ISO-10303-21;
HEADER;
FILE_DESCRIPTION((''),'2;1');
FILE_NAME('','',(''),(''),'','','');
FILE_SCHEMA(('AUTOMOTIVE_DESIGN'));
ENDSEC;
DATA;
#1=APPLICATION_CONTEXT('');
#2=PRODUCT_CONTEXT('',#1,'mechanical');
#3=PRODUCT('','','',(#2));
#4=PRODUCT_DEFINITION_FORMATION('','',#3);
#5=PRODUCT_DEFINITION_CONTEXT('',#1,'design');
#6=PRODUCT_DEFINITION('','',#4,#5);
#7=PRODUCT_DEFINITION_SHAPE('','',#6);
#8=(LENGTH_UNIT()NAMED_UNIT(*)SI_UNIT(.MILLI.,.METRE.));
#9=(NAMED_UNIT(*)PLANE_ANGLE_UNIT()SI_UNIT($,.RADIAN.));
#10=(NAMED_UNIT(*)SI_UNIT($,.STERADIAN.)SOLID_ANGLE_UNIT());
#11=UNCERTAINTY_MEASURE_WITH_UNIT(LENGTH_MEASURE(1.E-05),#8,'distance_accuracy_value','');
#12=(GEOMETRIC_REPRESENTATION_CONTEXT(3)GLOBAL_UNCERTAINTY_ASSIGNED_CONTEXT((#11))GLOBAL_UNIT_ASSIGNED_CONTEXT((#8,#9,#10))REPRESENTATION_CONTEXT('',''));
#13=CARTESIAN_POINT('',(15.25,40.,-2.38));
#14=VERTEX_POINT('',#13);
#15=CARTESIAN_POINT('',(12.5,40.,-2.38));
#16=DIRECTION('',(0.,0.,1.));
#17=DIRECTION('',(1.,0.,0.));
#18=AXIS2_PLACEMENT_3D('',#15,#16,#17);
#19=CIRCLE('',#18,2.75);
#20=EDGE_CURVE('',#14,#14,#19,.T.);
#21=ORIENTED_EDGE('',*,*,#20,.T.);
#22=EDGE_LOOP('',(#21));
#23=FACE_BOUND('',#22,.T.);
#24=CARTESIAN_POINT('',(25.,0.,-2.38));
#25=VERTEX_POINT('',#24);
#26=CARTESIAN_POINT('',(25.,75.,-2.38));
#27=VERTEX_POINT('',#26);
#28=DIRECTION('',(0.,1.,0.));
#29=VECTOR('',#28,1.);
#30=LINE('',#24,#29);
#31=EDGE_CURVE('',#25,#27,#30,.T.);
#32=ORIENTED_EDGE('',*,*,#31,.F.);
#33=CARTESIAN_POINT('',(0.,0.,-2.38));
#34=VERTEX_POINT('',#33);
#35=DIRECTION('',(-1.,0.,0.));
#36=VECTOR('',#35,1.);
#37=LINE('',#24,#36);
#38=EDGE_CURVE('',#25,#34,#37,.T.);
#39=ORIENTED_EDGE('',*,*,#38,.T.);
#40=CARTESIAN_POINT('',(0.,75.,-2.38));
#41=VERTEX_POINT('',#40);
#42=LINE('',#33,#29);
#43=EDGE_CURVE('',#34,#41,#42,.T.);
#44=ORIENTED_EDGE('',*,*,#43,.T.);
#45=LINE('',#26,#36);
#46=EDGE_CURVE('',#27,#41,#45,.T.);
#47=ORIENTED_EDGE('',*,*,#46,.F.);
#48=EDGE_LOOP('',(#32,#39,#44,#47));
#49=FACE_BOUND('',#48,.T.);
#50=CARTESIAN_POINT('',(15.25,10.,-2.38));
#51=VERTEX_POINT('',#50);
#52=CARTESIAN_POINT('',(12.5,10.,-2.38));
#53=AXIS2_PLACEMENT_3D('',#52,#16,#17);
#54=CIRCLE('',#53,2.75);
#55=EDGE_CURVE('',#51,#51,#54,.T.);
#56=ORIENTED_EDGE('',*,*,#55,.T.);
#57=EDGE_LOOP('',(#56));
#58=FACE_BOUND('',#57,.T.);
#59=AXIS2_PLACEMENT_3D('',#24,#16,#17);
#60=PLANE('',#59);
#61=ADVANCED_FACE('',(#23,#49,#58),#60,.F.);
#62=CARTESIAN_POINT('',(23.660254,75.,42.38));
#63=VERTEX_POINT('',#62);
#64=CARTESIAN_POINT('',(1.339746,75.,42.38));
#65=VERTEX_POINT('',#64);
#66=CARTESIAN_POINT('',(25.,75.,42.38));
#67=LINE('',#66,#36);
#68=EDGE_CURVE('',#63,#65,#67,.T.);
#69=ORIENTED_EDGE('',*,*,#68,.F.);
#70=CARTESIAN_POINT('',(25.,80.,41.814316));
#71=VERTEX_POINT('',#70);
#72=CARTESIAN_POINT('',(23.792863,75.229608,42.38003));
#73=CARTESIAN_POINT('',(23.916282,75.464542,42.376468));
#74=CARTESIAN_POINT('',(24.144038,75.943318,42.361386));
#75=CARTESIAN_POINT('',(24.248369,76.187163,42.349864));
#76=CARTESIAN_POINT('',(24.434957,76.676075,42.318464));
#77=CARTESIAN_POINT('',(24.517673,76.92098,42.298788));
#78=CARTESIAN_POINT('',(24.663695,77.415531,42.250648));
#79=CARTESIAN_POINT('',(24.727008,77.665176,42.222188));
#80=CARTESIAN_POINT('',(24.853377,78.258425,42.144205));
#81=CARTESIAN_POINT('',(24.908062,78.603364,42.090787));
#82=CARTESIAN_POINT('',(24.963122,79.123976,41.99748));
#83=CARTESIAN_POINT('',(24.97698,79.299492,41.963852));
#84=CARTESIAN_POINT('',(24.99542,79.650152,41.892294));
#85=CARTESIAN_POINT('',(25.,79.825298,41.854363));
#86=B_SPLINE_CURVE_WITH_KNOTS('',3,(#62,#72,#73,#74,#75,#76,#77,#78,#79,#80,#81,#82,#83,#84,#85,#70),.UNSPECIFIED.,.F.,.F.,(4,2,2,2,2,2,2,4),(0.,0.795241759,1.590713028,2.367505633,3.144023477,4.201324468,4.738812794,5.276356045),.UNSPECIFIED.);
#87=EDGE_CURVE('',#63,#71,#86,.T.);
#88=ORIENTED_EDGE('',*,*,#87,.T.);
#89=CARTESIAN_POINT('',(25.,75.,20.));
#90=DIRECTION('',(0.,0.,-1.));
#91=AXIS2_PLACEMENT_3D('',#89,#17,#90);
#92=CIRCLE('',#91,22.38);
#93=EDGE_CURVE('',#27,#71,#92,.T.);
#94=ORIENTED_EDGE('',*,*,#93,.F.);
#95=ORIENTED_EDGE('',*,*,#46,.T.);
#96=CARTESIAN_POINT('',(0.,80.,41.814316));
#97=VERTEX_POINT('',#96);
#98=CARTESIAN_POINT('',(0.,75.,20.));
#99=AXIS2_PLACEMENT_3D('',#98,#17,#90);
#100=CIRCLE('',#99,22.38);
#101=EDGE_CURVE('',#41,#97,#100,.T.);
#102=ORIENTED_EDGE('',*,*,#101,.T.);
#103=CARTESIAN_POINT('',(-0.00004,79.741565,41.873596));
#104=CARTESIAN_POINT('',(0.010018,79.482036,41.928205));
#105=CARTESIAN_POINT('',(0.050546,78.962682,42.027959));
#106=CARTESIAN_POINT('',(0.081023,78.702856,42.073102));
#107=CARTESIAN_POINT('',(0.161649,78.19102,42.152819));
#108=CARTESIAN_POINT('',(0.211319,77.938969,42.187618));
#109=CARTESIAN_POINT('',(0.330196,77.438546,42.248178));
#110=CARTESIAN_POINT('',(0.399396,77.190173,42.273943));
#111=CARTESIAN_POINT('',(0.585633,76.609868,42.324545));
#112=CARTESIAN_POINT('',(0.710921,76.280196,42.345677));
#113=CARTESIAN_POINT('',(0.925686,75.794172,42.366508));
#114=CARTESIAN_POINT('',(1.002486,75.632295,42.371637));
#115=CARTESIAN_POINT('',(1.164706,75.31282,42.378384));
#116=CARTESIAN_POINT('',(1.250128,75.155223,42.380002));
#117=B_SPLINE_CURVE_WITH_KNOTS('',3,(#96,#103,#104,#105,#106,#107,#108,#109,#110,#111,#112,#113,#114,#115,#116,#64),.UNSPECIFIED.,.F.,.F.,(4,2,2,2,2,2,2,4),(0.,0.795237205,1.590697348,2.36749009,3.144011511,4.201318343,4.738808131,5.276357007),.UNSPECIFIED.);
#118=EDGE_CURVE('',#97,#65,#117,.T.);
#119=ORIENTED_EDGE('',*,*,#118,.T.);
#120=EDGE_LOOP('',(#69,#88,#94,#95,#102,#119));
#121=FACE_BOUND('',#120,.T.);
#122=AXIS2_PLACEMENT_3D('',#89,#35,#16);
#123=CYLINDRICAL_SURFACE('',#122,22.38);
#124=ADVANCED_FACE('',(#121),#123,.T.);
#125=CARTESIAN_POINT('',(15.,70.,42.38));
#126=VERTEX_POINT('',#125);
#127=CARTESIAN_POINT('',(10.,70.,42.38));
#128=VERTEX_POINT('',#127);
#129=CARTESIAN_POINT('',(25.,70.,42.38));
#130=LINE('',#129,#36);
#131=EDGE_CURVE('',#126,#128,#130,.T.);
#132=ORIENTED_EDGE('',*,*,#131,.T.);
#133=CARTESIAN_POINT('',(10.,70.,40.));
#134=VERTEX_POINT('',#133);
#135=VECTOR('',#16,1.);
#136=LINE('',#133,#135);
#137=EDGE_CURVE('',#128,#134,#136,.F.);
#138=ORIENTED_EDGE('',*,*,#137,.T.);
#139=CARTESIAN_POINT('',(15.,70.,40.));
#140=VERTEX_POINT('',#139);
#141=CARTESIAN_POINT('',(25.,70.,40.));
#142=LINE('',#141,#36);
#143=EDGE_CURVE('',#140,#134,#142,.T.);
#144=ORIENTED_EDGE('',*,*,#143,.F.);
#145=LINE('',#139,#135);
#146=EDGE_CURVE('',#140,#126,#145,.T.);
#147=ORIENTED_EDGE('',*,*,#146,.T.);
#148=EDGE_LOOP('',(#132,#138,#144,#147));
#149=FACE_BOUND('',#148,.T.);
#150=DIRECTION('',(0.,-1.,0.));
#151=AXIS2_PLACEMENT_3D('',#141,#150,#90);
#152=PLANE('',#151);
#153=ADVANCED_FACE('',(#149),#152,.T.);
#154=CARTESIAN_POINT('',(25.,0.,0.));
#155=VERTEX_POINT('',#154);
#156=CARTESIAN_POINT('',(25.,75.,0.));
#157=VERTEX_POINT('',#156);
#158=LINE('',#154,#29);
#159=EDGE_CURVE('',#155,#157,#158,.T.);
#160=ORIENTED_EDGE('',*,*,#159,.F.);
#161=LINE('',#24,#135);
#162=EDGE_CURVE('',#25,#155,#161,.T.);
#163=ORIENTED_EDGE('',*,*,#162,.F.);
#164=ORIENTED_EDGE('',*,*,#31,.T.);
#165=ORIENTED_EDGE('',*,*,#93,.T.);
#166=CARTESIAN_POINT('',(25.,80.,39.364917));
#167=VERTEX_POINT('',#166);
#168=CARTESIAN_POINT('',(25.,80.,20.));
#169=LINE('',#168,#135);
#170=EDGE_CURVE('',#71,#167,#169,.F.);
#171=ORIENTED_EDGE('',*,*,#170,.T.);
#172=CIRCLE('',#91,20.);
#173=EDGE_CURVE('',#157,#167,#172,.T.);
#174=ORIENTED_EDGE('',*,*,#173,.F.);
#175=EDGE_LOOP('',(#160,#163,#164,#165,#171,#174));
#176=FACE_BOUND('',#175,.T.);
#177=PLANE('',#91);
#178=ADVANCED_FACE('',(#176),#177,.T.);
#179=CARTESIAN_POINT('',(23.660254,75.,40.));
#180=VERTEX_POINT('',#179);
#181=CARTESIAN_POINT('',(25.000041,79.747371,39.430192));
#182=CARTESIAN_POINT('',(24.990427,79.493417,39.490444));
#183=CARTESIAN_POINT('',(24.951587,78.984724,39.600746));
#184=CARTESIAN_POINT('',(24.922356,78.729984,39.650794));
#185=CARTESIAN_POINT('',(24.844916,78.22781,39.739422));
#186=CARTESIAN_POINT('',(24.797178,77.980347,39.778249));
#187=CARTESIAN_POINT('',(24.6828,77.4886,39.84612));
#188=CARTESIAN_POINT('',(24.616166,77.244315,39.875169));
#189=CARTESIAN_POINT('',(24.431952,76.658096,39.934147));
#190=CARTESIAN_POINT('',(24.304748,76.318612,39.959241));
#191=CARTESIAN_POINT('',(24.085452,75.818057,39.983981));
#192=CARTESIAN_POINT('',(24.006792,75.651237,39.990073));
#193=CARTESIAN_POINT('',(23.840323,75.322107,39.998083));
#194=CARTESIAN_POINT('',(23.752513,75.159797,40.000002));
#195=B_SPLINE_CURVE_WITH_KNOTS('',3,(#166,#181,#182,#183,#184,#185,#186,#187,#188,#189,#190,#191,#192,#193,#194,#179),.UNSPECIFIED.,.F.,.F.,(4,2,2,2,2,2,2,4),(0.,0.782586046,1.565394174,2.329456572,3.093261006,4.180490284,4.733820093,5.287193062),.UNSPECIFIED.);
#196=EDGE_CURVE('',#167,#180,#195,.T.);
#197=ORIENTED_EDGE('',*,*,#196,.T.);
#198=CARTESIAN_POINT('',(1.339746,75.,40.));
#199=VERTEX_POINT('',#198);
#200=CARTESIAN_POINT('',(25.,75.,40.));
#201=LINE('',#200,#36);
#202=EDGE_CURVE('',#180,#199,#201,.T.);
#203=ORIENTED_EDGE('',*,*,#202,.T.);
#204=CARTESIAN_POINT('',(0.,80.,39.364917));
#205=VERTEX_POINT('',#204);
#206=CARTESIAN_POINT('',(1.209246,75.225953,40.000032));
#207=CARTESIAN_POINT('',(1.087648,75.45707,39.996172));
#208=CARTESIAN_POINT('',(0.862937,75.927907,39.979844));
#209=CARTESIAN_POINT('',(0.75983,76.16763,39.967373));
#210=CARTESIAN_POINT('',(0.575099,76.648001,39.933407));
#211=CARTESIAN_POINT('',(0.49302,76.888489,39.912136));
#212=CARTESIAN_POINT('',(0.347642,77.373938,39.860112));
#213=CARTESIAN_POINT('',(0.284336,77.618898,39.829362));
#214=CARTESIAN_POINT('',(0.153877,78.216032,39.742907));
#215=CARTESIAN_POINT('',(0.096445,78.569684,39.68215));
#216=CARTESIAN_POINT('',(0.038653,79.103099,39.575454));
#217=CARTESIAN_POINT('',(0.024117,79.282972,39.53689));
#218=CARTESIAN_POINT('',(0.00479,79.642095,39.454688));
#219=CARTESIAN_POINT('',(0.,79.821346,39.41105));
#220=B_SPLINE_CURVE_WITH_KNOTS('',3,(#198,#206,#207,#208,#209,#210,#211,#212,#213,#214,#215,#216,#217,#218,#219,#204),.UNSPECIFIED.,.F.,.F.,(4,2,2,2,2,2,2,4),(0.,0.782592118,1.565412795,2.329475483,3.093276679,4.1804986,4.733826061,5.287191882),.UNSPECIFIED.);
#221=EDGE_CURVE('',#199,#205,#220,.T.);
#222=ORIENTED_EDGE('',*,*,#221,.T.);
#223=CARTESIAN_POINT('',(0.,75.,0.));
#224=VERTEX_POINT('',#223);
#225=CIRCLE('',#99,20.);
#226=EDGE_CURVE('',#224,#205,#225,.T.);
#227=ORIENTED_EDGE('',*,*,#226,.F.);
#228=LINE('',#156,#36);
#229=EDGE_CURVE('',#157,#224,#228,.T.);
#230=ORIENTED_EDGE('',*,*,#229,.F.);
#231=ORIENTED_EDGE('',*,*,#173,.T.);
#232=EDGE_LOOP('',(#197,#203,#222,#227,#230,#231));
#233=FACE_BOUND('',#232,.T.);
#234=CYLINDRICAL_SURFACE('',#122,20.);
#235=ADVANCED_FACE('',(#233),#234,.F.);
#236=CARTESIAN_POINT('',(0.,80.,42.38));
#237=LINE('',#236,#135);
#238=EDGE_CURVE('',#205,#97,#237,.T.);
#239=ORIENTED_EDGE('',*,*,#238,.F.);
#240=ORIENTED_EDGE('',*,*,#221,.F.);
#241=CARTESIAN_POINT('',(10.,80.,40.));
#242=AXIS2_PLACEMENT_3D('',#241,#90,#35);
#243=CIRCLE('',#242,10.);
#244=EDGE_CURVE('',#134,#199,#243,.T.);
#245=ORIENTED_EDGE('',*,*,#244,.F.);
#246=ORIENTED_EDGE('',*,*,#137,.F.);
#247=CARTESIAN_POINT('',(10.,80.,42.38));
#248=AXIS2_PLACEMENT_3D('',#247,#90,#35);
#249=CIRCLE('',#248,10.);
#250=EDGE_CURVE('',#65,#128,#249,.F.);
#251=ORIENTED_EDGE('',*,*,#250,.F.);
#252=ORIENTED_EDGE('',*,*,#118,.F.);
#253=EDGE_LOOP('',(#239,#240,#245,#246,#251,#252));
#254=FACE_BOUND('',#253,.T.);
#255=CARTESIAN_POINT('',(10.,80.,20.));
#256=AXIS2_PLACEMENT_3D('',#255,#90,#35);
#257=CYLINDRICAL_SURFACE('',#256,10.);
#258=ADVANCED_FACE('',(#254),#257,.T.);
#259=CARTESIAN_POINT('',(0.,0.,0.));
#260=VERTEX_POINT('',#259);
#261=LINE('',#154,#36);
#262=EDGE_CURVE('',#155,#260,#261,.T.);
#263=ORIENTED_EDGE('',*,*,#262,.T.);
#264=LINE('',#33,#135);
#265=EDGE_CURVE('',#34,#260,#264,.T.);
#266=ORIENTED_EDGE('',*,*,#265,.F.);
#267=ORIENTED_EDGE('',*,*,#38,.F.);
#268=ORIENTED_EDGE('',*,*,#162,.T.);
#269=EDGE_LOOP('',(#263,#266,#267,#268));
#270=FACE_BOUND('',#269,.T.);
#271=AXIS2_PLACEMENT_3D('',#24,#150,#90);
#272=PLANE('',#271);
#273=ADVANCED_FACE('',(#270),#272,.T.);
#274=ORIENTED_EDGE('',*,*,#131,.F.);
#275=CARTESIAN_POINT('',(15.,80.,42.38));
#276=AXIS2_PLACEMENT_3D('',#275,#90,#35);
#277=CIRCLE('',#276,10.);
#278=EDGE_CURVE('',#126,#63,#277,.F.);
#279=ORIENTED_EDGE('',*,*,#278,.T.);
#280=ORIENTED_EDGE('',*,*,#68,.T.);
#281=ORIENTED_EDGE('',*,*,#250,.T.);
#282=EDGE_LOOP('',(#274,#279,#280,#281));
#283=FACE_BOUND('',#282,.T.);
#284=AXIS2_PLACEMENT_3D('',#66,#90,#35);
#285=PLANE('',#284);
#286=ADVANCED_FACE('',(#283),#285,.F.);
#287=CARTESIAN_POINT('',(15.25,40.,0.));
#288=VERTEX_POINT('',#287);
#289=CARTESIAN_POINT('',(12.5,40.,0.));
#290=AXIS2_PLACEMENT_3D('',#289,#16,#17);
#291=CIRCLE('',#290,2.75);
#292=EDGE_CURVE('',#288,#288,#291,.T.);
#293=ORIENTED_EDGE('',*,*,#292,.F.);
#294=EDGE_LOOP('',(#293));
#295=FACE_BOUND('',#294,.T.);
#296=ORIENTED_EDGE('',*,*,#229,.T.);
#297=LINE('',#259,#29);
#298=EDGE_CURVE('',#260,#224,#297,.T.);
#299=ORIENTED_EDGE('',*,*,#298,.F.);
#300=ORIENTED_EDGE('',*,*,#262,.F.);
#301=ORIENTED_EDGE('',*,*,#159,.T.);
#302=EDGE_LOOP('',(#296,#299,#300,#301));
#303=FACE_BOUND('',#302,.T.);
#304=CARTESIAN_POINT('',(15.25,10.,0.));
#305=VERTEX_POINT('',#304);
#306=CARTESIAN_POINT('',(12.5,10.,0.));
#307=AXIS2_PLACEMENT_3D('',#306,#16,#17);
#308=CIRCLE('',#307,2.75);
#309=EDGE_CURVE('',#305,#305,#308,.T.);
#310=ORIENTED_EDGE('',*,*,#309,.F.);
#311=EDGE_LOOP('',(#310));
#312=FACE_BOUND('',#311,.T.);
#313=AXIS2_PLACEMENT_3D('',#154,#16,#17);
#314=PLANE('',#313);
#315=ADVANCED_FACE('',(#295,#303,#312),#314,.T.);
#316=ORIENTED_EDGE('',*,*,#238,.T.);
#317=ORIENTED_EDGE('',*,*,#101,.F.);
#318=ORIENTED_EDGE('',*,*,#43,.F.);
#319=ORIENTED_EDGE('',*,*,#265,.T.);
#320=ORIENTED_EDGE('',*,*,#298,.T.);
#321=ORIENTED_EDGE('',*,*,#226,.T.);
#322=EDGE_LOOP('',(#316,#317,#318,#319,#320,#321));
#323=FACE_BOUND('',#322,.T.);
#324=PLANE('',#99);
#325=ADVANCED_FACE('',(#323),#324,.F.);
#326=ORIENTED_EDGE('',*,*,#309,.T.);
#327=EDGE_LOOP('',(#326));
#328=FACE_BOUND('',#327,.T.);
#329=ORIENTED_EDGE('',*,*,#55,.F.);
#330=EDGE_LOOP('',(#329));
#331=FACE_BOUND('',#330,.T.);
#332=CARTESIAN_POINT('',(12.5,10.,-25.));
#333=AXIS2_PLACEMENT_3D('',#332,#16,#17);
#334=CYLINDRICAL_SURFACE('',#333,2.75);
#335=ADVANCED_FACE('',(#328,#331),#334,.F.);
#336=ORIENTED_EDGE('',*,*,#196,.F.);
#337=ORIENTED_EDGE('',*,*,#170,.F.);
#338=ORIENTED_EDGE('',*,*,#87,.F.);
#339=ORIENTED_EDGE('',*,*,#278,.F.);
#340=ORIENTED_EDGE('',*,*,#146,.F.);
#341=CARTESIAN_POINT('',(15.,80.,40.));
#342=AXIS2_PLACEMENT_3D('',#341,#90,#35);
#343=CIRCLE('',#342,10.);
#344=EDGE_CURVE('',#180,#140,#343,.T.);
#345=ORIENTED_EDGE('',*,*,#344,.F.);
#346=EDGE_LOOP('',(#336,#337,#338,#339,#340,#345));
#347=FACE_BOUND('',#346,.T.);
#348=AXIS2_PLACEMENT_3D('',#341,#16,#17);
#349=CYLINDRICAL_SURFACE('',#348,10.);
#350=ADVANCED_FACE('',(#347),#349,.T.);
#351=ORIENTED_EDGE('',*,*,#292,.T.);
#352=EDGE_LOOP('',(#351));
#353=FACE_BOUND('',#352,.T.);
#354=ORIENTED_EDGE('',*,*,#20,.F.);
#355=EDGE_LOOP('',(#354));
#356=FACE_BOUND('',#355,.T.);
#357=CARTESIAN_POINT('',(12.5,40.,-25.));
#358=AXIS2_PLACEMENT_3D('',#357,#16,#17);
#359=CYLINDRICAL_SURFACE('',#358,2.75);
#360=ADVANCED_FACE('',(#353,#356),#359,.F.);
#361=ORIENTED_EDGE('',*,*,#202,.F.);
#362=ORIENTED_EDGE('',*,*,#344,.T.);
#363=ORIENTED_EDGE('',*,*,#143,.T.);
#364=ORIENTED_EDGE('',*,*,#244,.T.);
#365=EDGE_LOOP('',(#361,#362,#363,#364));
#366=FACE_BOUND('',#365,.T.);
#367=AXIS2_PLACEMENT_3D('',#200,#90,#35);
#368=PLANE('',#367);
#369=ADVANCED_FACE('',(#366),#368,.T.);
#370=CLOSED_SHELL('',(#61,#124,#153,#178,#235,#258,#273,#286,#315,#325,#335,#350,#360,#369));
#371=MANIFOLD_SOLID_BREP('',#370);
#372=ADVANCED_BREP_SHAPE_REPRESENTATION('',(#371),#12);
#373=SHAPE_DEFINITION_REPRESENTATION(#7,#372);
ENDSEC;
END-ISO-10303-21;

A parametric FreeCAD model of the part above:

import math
import FreeCAD as App
import Part
import Sketcher

V = App.Vector
Q = App.Units.Quantity


def edges_at(feature, points):
    """Names of the edges that pass closest to the given points."""
    edges = feature.Shape.Edges
    near = lambda p: min(range(len(edges)), key=lambda i: edges[i].distToShape(Part.Vertex(*p))[0])
    return sorted({f"Edge{near(p) + 1}" for p in points})

doc = App.newDocument("Part")
params = doc.addObject("Spreadsheet::Sheet", "Params")
for row, (alias, value) in enumerate([
    ("sketch1_radius", "20 mm"),
    ("sketch1_width", "75 mm"),
    ("sketch1_width2", "5 mm"),
    ("sketch1_radius2", "22.38 mm"),
    ("pad1_length", "25 mm"),
    ("fillet_radius", "10 mm"),
    ("sketch2_diameter", "5.5 mm"),
    ("pocket1_length", "25 mm"),
], start=1):
    params.set(f"A{row}", alias)
    params.set(f"B{row}", "=" + value)
    params.setAlias(f"B{row}", alias)

body = doc.addObject("PartDesign::Body", "Body")

# Sketch on YZ plane
sketch1 = body.newObject("Sketcher::SketchObject", "Sketch")
sketch1.AttachmentSupport = (doc.getObject("YZ_Plane"), [""])
sketch1.MapMode = "FlatFace"
sketch1.addGeometry([
    Part.LineSegment(V(75, 0, 0), V(0, 0, 0)),  # 0
    Part.LineSegment(V(0, 0, 0), V(0, -2.4, 0)),  # 1
    Part.LineSegment(V(0, -2.4, 0), V(75, -2.4, 0)),  # 2
    Part.ArcOfCircle(Part.Circle(V(75, 20, 0), V(0, 0, 1), 22.4), math.radians(-90), math.radians(90)),  # 3
    Part.LineSegment(V(75, 42.4, 0), V(70, 42.4, 0)),  # 4
    Part.LineSegment(V(70, 42.4, 0), V(70, 40, 0)),  # 5
    Part.LineSegment(V(70, 40, 0), V(75, 40, 0)),  # 6
    Part.ArcOfCircle(Part.Circle(V(75, 20, 0), V(0, 0, 1), 20), math.radians(-90), math.radians(90)),  # 7
], False)
sketch1.addConstraint([
    Sketcher.Constraint("Coincident", 0, 2, 1, 1),
    Sketcher.Constraint("Coincident", 1, 2, 2, 1),
    Sketcher.Constraint("Tangent", 2, 2, 3, 1),
    Sketcher.Constraint("Tangent", 3, 2, 4, 1),
    Sketcher.Constraint("Coincident", 4, 2, 5, 1),
    Sketcher.Constraint("Coincident", 5, 2, 6, 1),
    Sketcher.Constraint("Tangent", 6, 2, 7, 2),
    Sketcher.Constraint("Tangent", 7, 1, 0, 1),
    Sketcher.Constraint("Horizontal", 0),
    Sketcher.Constraint("Vertical", 1),
    Sketcher.Constraint("Horizontal", 2),
    Sketcher.Constraint("Horizontal", 4),
    Sketcher.Constraint("Vertical", 5),
    Sketcher.Constraint("Horizontal", 6),
    Sketcher.Constraint("Coincident", 0, 2, -1, 1),
    Sketcher.Constraint("Coincident", 7, 3, 3, 3),
    Sketcher.Constraint("Radius", 7, Q("20 mm")),
    Sketcher.Constraint("DistanceX", 0, 2, 0, 1, Q("75 mm")),
    Sketcher.Constraint("DistanceX", 4, 2, 4, 1, Q("5 mm")),
    Sketcher.Constraint("Radius", 3, Q("22.38 mm")),
])
sketch1.setExpression("Constraints[16]", "Params.sketch1_radius")
sketch1.setExpression("Constraints[17]", "Params.sketch1_width")
sketch1.setExpression("Constraints[18]", "Params.sketch1_width2")
sketch1.setExpression("Constraints[19]", "Params.sketch1_radius2")
pad1 = body.newObject("PartDesign::Pad", "Pad")
pad1.Profile = sketch1
pad1.setExpression("Length", "Params.pad1_length")
doc.recompute()

fillet = body.newObject("PartDesign::Fillet", "Fillet")
fillet.Base = (pad1, edges_at(pad1, [(0, 70, 41.19), (25, 70, 41.19)]))
fillet.setExpression("Radius", "Params.fillet_radius")

# Sketch on XY plane
sketch2 = body.newObject("Sketcher::SketchObject", "Sketch001")
sketch2.AttachmentSupport = (doc.getObject("XY_Plane"), [""])
sketch2.MapMode = "FlatFace"
sketch2.addGeometry([
    Part.Circle(V(12.5, 10, 0), V(0, 0, 1), 2.8),
    Part.Circle(V(12.5, 40, 0), V(0, 0, 1), 2.8),
], False)
sketch2.addConstraint([
    Sketcher.Constraint("Equal", 0, 1),
    Sketcher.Constraint("Vertical", 0, 3, 1, 3),
    Sketcher.Constraint("Diameter", 0, Q("5.5 mm")),
    Sketcher.Constraint("DistanceY", -1, 1, 0, 3, Q("10 mm")),
    Sketcher.Constraint("DistanceY", -1, 1, 1, 3, Q("40 mm")),
    Sketcher.Constraint("DistanceX", -1, 1, 0, 3, Q("12.5 mm")),
])
sketch2.setExpression("Constraints[2]", "Params.sketch2_diameter")
pocket1 = body.newObject("PartDesign::Pocket", "Pocket")
pocket1.Profile = sketch2
pocket1.setExpression("Length", "Params.pocket1_length")

doc.recompute()
